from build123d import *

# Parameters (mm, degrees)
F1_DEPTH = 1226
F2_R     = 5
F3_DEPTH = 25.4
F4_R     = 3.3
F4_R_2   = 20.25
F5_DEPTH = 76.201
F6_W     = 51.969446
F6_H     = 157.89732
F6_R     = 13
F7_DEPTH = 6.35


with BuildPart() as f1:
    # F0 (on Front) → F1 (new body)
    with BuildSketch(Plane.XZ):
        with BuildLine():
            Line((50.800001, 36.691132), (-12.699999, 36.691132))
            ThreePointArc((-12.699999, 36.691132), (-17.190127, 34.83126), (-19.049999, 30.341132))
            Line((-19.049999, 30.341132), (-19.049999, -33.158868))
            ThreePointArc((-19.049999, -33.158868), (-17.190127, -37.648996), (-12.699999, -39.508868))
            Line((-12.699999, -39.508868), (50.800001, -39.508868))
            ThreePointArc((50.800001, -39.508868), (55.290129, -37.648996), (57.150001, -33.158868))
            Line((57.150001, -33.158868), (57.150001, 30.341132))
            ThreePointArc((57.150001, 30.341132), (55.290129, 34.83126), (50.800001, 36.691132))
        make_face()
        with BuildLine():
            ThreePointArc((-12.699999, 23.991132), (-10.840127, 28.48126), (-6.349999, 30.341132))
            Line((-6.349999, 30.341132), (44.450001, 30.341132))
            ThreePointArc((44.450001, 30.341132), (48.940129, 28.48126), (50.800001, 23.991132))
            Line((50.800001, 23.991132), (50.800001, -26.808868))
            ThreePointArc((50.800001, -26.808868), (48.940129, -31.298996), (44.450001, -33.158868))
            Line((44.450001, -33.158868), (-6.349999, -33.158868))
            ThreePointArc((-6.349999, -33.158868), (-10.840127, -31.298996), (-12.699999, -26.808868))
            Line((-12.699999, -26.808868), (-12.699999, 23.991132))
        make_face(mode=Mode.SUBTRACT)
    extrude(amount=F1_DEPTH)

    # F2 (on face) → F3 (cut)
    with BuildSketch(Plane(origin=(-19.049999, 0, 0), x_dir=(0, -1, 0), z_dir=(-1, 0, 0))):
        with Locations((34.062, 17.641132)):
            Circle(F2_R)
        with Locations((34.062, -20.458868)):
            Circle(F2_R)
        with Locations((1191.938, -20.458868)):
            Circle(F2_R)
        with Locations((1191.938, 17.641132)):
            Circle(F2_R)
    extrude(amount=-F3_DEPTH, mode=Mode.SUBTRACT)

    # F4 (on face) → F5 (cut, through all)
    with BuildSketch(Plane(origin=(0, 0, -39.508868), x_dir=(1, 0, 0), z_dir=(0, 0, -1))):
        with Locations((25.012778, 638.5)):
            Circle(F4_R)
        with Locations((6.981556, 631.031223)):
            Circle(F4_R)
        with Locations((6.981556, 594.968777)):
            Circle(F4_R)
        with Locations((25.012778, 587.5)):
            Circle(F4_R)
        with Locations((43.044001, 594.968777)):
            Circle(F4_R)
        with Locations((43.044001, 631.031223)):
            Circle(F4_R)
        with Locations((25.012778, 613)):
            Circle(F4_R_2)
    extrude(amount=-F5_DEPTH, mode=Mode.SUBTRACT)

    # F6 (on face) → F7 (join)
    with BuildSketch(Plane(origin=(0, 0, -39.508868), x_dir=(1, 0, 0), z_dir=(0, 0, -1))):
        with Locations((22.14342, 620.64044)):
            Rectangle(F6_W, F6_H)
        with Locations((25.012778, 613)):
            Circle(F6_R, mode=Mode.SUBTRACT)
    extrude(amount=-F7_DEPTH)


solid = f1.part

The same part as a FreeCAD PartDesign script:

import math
import FreeCAD as App
import Part
import Sketcher

V = App.Vector

doc = App.newDocument("Part")
body = doc.addObject("PartDesign::Body", "Body")

# Sketch on XZ plane
sketch1 = doc.addObject("Sketcher::SketchObject", "Sketch")
body.addObject(sketch1)
sketch1.AttachmentSupport = (doc.XZ_Plane, [""])
sketch1.MapMode = "FlatFace"
sketch1.addGeometry([
    Part.LineSegment(V(50.800001, 36.691132, 0), V(-12.699999, 36.691132, 0)),  # 0
    Part.ArcOfCircle(Part.Circle(V(-12.699999, 30.341132, 0), V(0, 0, 1), 6.35), math.radians(90.000002), math.radians(179.999998)),  # 1
    Part.LineSegment(V(-19.049999, 30.341132, 0), V(-19.049999, -33.158868, 0)),  # 2
    Part.ArcOfCircle(Part.Circle(V(-12.699999, -33.158868, 0), V(0, 0, 1), 6.35), math.radians(-179.999998), math.radians(-90.000002)),  # 3
    Part.LineSegment(V(-12.699999, -39.508868, 0), V(50.800001, -39.508868, 0)),  # 4
    Part.ArcOfCircle(Part.Circle(V(50.800001, -33.158868, 0), V(0, 0, 1), 6.35), math.radians(-89.999998), math.radians(-0.000002)),  # 5
    Part.LineSegment(V(57.150001, -33.158868, 0), V(57.150001, 30.341132, 0)),  # 6
    Part.ArcOfCircle(Part.Circle(V(50.800001, 30.341132, 0), V(0, 0, 1), 6.35), math.radians(0.000002), math.radians(89.999998)),  # 7
    Part.LineSegment(V(-12.699999, -26.808868, 0), V(-12.699999, 23.991132, 0)),  # 8
    Part.ArcOfCircle(Part.Circle(V(-6.349999, 23.991132, 0), V(0, 0, 1), 6.35), math.radians(90.000002), math.radians(179.999998)),  # 9
    Part.LineSegment(V(-6.349999, 30.341132, 0), V(44.450001, 30.341132, 0)),  # 10
    Part.ArcOfCircle(Part.Circle(V(44.450001, 23.991132, 0), V(0, 0, 1), 6.35), math.radians(0.000002), math.radians(89.999998)),  # 11
    Part.LineSegment(V(50.800001, 23.991132, 0), V(50.800001, -26.808868, 0)),  # 12
    Part.ArcOfCircle(Part.Circle(V(44.450001, -26.808868, 0), V(0, 0, 1), 6.35), math.radians(-89.999998), math.radians(-0.000002)),  # 13
    Part.LineSegment(V(44.450001, -33.158868, 0), V(-6.349999, -33.158868, 0)),  # 14
    Part.ArcOfCircle(Part.Circle(V(-6.349999, -26.808868, 0), V(0, 0, 1), 6.35), math.radians(-179.999998), math.radians(-90.000002)),  # 15
], False)
sketch1.addConstraint([
    Sketcher.Constraint("Tangent", 0, 2, 1, 1),
    Sketcher.Constraint("Tangent", 1, 2, 2, 1),
    Sketcher.Constraint("Tangent", 2, 2, 3, 1),
    Sketcher.Constraint("Tangent", 3, 2, 4, 1),
    Sketcher.Constraint("Tangent", 4, 2, 5, 1),
    Sketcher.Constraint("Tangent", 5, 2, 6, 1),
    Sketcher.Constraint("Tangent", 6, 2, 7, 1),
    Sketcher.Constraint("Tangent", 7, 2, 0, 1),
    Sketcher.Constraint("Tangent", 8, 2, 9, 2),
    Sketcher.Constraint("Tangent", 9, 1, 10, 1),
    Sketcher.Constraint("Tangent", 10, 2, 11, 2),
    Sketcher.Constraint("Tangent", 11, 1, 12, 1),
    Sketcher.Constraint("Tangent", 12, 2, 13, 2),
    Sketcher.Constraint("Tangent", 13, 1, 14, 1),
    Sketcher.Constraint("Tangent", 14, 2, 15, 2),
    Sketcher.Constraint("Tangent", 15, 1, 8, 1),
    Sketcher.Constraint("Horizontal", 0),
    Sketcher.Constraint("Vertical", 2),
    Sketcher.Constraint("Horizontal", 4),
    Sketcher.Constraint("Vertical", 6),
    Sketcher.Constraint("Vertical", 8),
    Sketcher.Constraint("Horizontal", 10),
    Sketcher.Constraint("Vertical", 12),
    Sketcher.Constraint("Horizontal", 14),
    Sketcher.Constraint("Equal", 1, 3),
    Sketcher.Constraint("Equal", 3, 5),
    Sketcher.Constraint("Equal", 5, 7),
    Sketcher.Constraint("Equal", 7, 9),
    Sketcher.Constraint("Equal", 9, 11),
    Sketcher.Constraint("Equal", 11, 13),
    Sketcher.Constraint("Equal", 13, 15),
    Sketcher.Constraint("Horizontal", 6, 2, 9, 1),
    Sketcher.Constraint("Horizontal", 5, 2, 13, 1),
    Sketcher.Constraint("Vertical", 3, 2, 8, 2),
    Sketcher.Constraint("Vertical", 7, 2, 11, 1),
    Sketcher.Constraint("Equal", 4, 2),
    Sketcher.Constraint("Radius", 1, 6.35),
    Sketcher.Constraint("DistanceX", 0, 2, 0, 1, 63.5),
    Sketcher.Constraint("DistanceX", 1, 3, -1, 1, 12.699999),
    Sketcher.Constraint("DistanceY", -1, 1, 1, 3, 30.341132),
])
pad1 = doc.addObject("PartDesign::Pad", "Pad")
body.addObject(pad1)
pad1.Profile = sketch1
pad1.Length = 1226

# Sketch on YZ plane
sketch2 = doc.addObject("Sketcher::SketchObject", "Sketch001")
body.addObject(sketch2)
sketch2.AttachmentSupport = (doc.YZ_Plane, [""])
sketch2.MapMode = "FlatFace"
sketch2.AttachmentOffset = App.Placement(V(0, 0, -19.049999), App.Rotation())
sketch2.addGeometry([
    Part.Circle(V(-34.062, 17.641132, 0), V(0, 0, 1), 5),
    Part.Circle(V(-34.062, -20.458868, 0), V(0, 0, 1), 5),
    Part.Circle(V(-1191.938, -20.458868, 0), V(0, 0, 1), 5),
    Part.Circle(V(-1191.938, 17.641132, 0), V(0, 0, 1), 5),
], False)
sketch2.addConstraint([
    Sketcher.Constraint("Equal", 0, 1),
    Sketcher.Constraint("Equal", 1, 2),
    Sketcher.Constraint("Equal", 2, 3),
    Sketcher.Constraint("Horizontal", 1, 3, 2, 3),
    Sketcher.Constraint("Horizontal", 0, 3, 3, 3),
    Sketcher.Constraint("Vertical", 0, 3, 1, 3),
    Sketcher.Constraint("Vertical", 2, 3, 3, 3),
    Sketcher.Constraint("Diameter", 0, 10.0),
    Sketcher.Constraint("DistanceY", 1, 3, 0, 3, 38.1),
    Sketcher.Constraint("DistanceX", 0, 3, -1, 1, 34.062),
    Sketcher.Constraint("DistanceX", 2, 3, -1, 1, 1191.938),
    Sketcher.Constraint("DistanceY", -1, 1, 0, 3, 17.641132),
])
pocket1 = doc.addObject("PartDesign::Pocket", "Pocket")
body.addObject(pocket1)
pocket1.Profile = sketch2
pocket1.Length = 25.4
pocket1.Reversed = True

# Sketch on XY plane
sketch3 = doc.addObject("Sketcher::SketchObject", "Sketch002")
body.addObject(sketch3)
sketch3.AttachmentSupport = (doc.XY_Plane, [""])
sketch3.MapMode = "FlatFace"
sketch3.AttachmentOffset = App.Placement(V(0, 0, -39.508868), App.Rotation())
sketch3.addGeometry([
    Part.Circle(V(25.012778, -638.5, 0), V(0, 0, 1), 3.3),  # 0
    Part.Circle(V(6.981556, -631.031223, 0), V(0, 0, 1), 3.3),  # 1
    Part.Circle(V(6.981556, -594.968777, 0), V(0, 0, 1), 3.3),  # 2
    Part.Circle(V(25.012778, -587.5, 0), V(0, 0, 1), 3.3),  # 3
    Part.Circle(V(43.044001, -594.968777, 0), V(0, 0, 1), 3.3),  # 4
    Part.Circle(V(43.044001, -631.031223, 0), V(0, 0, 1), 3.3),  # 5
    Part.Circle(V(25.012778, -613, 0), V(0, 0, 1), 20.25),  # 6
], False)
sketch3.addConstraint([
    Sketcher.Constraint("Equal", 0, 1),
    Sketcher.Constraint("Equal", 1, 2),
    Sketcher.Constraint("Equal", 2, 3),
    Sketcher.Constraint("Equal", 3, 4),
    Sketcher.Constraint("Equal", 4, 5),
    Sketcher.Constraint("Horizontal", 2, 3, 4, 3),
    Sketcher.Constraint("Horizontal", 1, 3, 5, 3),
    Sketcher.Constraint("Vertical", 1, 3, 2, 3),
    Sketcher.Constraint("Vertical", 0, 3, 3, 3),
    Sketcher.Constraint("Vertical", 4, 3, 5, 3),
    Sketcher.Constraint("Vertical", 3, 3, 6, 3),
    Sketcher.Constraint("Diameter", 0, 6.6),
    Sketcher.Constraint("Diameter", 6, 40.5),
    Sketcher.Constraint("DistanceY", 6, 3, -1, 1, 613.0),
    Sketcher.Constraint("DistanceY", 0, 3, 3, 3, 51.0),
    Sketcher.Constraint("DistanceY", 0, 3, -1, 1, 638.5),
    Sketcher.Constraint("DistanceX", -1, 1, 4, 3, 43.044001),
    Sketcher.Constraint("DistanceX", -1, 1, 0, 3, 25.012778),
    Sketcher.Constraint("DistanceX", 1, 3, 0, 3, 18.031222),
    Sketcher.Constraint("DistanceY", 1, 3, -1, 1, 631.031223),
    Sketcher.Constraint("DistanceY", 2, 3, -1, 1, 594.968777),
])
pocket2 = doc.addObject("PartDesign::Pocket", "Pocket001")
body.addObject(pocket2)
pocket2.Profile = sketch3
pocket2.Type = "ThroughAll"
pocket2.Reversed = True

# Sketch on XY plane
sketch4 = doc.addObject("Sketcher::SketchObject", "Sketch003")
body.addObject(sketch4)
sketch4.AttachmentSupport = (doc.XY_Plane, [""])
sketch4.MapMode = "FlatFace"
sketch4.AttachmentOffset = App.Placement(V(0, 0, -39.508868), App.Rotation())
sketch4.addGeometry([
    Part.LineSegment(V(-3.841303, -699.5891, 0), V(-3.841303, -541.69178, 0)),  # 0
    Part.LineSegment(V(-3.841303, -541.69178, 0), V(48.128143, -541.69178, 0)),  # 1
    Part.LineSegment(V(48.128143, -541.69178, 0), V(48.128143, -699.5891, 0)),  # 2
    Part.LineSegment(V(48.128143, -699.5891, 0), V(-3.841303, -699.5891, 0)),  # 3
    Part.Circle(V(25.012778, -613, 0), V(0, 0, 1), 13),  # 4
], False)
sketch4.addConstraint([
    Sketcher.Constraint("Coincident", 0, 2, 1, 1),
    Sketcher.Constraint("Coincident", 1, 2, 2, 1),
    Sketcher.Constraint("Coincident", 2, 2, 3, 1),
    Sketcher.Constraint("Coincident", 3, 2, 0, 1),
    Sketcher.Constraint("Vertical", 0),
    Sketcher.Constraint("Horizontal", 1),
    Sketcher.Constraint("Vertical", 2),
    Sketcher.Constraint("Horizontal", 3),
    Sketcher.Constraint("Diameter", 4, 26.0),
    Sketcher.Constraint("DistanceY", 4, 3, -1, 1, 613.0),
    Sketcher.Constraint("DistanceY", 0, 1, 0, 2, 157.89732),
    Sketcher.Constraint("DistanceY", 2, 2, -1, 1, 699.5891),
    Sketcher.Constraint("DistanceX", 1, 1, 1, 2, 51.969446),
    Sketcher.Constraint("DistanceX", -1, 1, 4, 3, 25.012778),
    Sketcher.Constraint("DistanceX", 0, 2, 4, 3, 28.854081),
])
pad2 = doc.addObject("PartDesign::Pad", "Pad001")
body.addObject(pad2)
pad2.Profile = sketch4
pad2.Length = 6.35

doc.recompute()
